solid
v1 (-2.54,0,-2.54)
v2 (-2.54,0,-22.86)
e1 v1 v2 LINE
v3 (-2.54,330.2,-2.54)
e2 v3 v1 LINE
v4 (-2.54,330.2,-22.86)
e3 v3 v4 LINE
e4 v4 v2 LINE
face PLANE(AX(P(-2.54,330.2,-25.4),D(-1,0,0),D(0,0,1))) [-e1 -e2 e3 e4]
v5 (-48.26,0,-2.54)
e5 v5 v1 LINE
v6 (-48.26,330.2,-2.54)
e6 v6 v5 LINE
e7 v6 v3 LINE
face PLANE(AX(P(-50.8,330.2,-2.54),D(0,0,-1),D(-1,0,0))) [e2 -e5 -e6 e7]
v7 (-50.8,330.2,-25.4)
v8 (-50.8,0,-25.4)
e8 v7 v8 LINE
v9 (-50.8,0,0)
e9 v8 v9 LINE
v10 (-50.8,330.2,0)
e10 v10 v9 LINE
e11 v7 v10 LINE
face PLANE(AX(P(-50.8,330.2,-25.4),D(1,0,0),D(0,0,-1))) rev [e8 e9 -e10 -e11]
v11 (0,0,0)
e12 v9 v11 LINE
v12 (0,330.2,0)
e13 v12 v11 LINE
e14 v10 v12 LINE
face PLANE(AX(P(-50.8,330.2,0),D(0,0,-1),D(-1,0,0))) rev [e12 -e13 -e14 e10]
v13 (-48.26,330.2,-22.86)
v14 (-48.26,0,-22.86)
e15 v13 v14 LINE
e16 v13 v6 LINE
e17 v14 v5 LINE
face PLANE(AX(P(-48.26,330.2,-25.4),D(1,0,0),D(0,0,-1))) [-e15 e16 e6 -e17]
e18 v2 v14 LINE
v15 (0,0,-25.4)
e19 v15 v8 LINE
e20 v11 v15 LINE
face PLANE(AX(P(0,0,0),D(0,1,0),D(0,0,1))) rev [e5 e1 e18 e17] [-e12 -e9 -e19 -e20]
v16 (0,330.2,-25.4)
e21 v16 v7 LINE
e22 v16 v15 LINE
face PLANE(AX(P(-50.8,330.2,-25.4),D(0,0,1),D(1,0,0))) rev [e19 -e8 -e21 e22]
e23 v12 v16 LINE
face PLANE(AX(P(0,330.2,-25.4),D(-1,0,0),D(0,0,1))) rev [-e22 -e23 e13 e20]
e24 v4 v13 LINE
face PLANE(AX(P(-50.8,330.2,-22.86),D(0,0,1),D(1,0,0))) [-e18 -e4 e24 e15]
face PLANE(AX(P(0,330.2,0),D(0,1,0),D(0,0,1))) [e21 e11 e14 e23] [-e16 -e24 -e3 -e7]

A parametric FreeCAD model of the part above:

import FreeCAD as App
import Part
import Sketcher
Q = App.Units.Quantity


def add_polygon(sketch, points):
    """Adds a closed chain of lines whose ends are joined by coincident constraints."""
    first, n = sketch.GeometryCount, len(points)
    for a, b in zip(points, points[1:] + points[:1]):
        sketch.addGeometry(Part.LineSegment(App.Vector(*a, 0), App.Vector(*b, 0)), False)
    for i in range(n):
        sketch.addConstraint(Sketcher.Constraint("Coincident", first + i, 2, first + (i + 1) % n, 1))

doc = App.newDocument("Part")
body = doc.addObject("PartDesign::Body", "Body")

# Sketch on XZ plane
sketch1 = body.newObject("Sketcher::SketchObject", "Sketch")
sketch1.AttachmentSupport = (doc.getObject("XZ_Plane"), [""])
sketch1.MapMode = "FlatFace"
add_polygon(sketch1, [(-50.8, -25.4), (-50.8, 0), (0, 0), (0, -25.4)])  # lines 0-3
add_polygon(sketch1, [(-2.54, -2.54), (-48.26, -2.54), (-48.26, -22.86), (-2.54, -22.86)])  # lines 4-7
sketch1.addConstraint([
    Sketcher.Constraint("Vertical", 0),
    Sketcher.Constraint("Horizontal", 1),
    Sketcher.Constraint("Vertical", 2),
    Sketcher.Constraint("Horizontal", 3),
    Sketcher.Constraint("Horizontal", 4),
    Sketcher.Constraint("Vertical", 5),
    Sketcher.Constraint("Horizontal", 6),
    Sketcher.Constraint("Vertical", 7),
    Sketcher.Constraint("Coincident", 1, 2, -1, 1),
    Sketcher.Constraint("DistanceX", 1, 1, 1, 2, Q("2 in")),
    Sketcher.Constraint("DistanceY", 0, 1, 0, 2, Q("1 in")),
    Sketcher.Constraint("DistanceX", 4, 2, 4, 1, Q("1.8 in")),
    Sketcher.Constraint("DistanceY", 5, 2, 5, 1, Q("0.8 in")),
    Sketcher.Constraint("DistanceX", 4, 2, -1, 1, Q("1.9 in")),
    Sketcher.Constraint("DistanceY", 4, 2, -1, 1, Q("0.1 in")),
])
pad1 = body.newObject("PartDesign::Pad", "Pad")
pad1.Profile = sketch1
pad1.Length = Q("13 in")
pad1.Reversed = True

doc.recompute()
